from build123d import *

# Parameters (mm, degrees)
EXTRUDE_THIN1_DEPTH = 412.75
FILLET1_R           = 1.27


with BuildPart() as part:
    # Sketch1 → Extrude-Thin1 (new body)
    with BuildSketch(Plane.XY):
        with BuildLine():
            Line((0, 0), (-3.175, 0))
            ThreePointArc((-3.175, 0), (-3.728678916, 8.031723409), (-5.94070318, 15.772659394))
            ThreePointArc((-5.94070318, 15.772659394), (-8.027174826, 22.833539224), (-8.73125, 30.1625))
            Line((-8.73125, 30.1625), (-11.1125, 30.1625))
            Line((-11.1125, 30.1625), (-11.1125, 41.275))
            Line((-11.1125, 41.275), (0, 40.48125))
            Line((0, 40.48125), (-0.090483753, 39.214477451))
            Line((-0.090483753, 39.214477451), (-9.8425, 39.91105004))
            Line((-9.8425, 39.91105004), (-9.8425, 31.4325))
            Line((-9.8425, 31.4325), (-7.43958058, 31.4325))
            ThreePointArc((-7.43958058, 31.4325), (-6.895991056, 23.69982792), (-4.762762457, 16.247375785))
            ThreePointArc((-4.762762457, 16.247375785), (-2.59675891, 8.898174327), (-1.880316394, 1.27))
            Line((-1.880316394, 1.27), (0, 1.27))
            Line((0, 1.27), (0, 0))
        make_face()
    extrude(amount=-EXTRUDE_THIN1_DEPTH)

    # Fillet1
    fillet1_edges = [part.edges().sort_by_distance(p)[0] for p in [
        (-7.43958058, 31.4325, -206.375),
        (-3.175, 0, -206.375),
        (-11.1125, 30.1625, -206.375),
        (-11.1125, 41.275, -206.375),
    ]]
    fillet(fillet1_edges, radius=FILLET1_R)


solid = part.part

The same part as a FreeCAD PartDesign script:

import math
import FreeCAD as App
import Part
import Sketcher
from FreeCAD import Vector
Q = App.Units.Quantity


def edges_at(feature, points):
    """Names of the edges that pass closest to the given points."""
    edges = feature.Shape.Edges
    near = lambda p: min(range(len(edges)), key=lambda i: edges[i].distToShape(Part.Vertex(*p))[0])
    return sorted({f"Edge{near(p) + 1}" for p in points})

doc = App.newDocument("Part")
body = doc.addObject("PartDesign::Body", "Body")

sketch1 = body.newObject("Sketcher::SketchObject", "Sketch")
sketch1.AttachmentSupport = (doc.getObject("XY_Plane"), [""])
sketch1.MapMode = "FlatFace"
sketch1.addGeometry([
    Part.LineSegment(Vector(-3.2, 0, 0), Vector(0, 0, 0)),
    Part.LineSegment(Vector(0, 0, 0), Vector(0, 1.3, 0)),
    Part.LineSegment(Vector(0, 1.3, 0), Vector(-1.9, 1.3, 0)),
    Part.ArcOfCircle(Part.Circle(Vector(-41.6, 1.4, 0), Vector(0, 0, 1), 39.8), math.radians(0), math.radians(22)),
    Part.ArcOfCircle(Part.Circle(Vector(29.8, 30.2, 0), Vector(0, 0, 1), 37.2), math.radians(178), math.radians(202)),
    Part.LineSegment(Vector(-7.4, 31.4, 0), Vector(-9.8, 31.4, 0)),
    Part.LineSegment(Vector(-9.8, 31.4, 0), Vector(-9.8, 39.9, 0)),
    Part.LineSegment(Vector(-9.8, 39.9, 0), Vector(-0.1, 39.2, 0)),
    Part.LineSegment(Vector(-0.1, 39.2, 0), Vector(0, 40.5, 0)),
    Part.LineSegment(Vector(0, 40.5, 0), Vector(-11.1, 41.3, 0)),
    Part.LineSegment(Vector(-11.1, 41.3, 0), Vector(-11.1, 30.2, 0)),
    Part.LineSegment(Vector(-11.1, 30.2, 0), Vector(-8.7, 30.2, 0)),
    Part.ArcOfCircle(Part.Circle(Vector(29.8, 30.2, 0), Vector(0, 0, 1), 38.5), math.radians(-180), math.radians(-158)),
    Part.ArcOfCircle(Part.Circle(Vector(-41.6, 1.4, 0), Vector(0, 0, 1), 38.5), math.radians(-2), math.radians(22)),
], False)
sketch1.addConstraint([
    Sketcher.Constraint("Coincident", 0, 2, 1, 1),
    Sketcher.Constraint("Coincident", 1, 2, 2, 1),
    Sketcher.Constraint("Coincident", 2, 2, 3, 1),
    Sketcher.Constraint("Tangent", 3, 2, 4, 2),
    Sketcher.Constraint("Coincident", 4, 1, 5, 1),
    Sketcher.Constraint("Coincident", 5, 2, 6, 1),
    Sketcher.Constraint("Coincident", 6, 2, 7, 1),
    Sketcher.Constraint("Coincident", 7, 2, 8, 1),
    Sketcher.Constraint("Coincident", 8, 2, 9, 1),
    Sketcher.Constraint("Coincident", 9, 2, 10, 1),
    Sketcher.Constraint("Coincident", 10, 2, 11, 1),
    Sketcher.Constraint("Coincident", 11, 2, 12, 1),
    Sketcher.Constraint("Tangent", 12, 2, 13, 2),
    Sketcher.Constraint("Coincident", 13, 1, 0, 1),
    Sketcher.Constraint("Horizontal", 0),
    Sketcher.Constraint("Vertical", 1),
    Sketcher.Constraint("Horizontal", 2),
    Sketcher.Constraint("Horizontal", 5),
    Sketcher.Constraint("Vertical", 6),
    Sketcher.Constraint("Vertical", 10),
    Sketcher.Constraint("Horizontal", 11),
    Sketcher.Constraint("Coincident", 0, 2, -1, 1),
    Sketcher.Constraint("Coincident", 12, 3, 4, 3),
    Sketcher.Constraint("Coincident", 13, 3, 3, 3),
    Sketcher.Constraint("Equal", 12, 13),
    Sketcher.Constraint("PointOnObject", 8, 2, -2),
    Sketcher.Constraint("Perpendicular", 7, 8),
    Sketcher.Constraint("Perpendicular", 8, 9),
    Sketcher.Constraint("Horizontal", 12, 3, 10, 2),
    Sketcher.Constraint("Radius", 12, Q("1.515625 in")),
    Sketcher.Constraint("DistanceY", 1, 1, 1, 2, Q("0.05 in")),
    Sketcher.Constraint("Distance", 8, Q("0.05 in")),
    Sketcher.Constraint("DistanceX", 0, 1, 0, 2, Q("0.125 in")),
    Sketcher.Constraint("DistanceX", 11, 1, 11, 2, Q("0.09375 in")),
    Sketcher.Constraint("DistanceY", 10, 2, 10, 1, Q("0.4375 in")),
    Sketcher.Constraint("DistanceY", 12, 3, 4, 1, Q("0.05 in")),
    Sketcher.Constraint("DistanceX", 9, 2, 6, 2, Q("0.05 in")),
    Sketcher.Constraint("DistanceX", -1, 1, 4, 3, Q("1.171875 in")),
    Sketcher.Constraint("DistanceY", -1, 1, 4, 3, Q("1.1875 in")),
    Sketcher.Constraint("DistanceY", -1, 1, 8, 2, Q("1.59375 in")),
    Sketcher.Constraint("Radius", 3, Q("39.766875 mm")),
])
pad1 = body.newObject("PartDesign::Pad", "Pad")
pad1.Profile = sketch1
pad1.Length = Q("16.25 in")
pad1.Reversed = True
doc.recompute()

fillet = body.newObject("PartDesign::Fillet", "Fillet")
fillet.Base = (pad1, edges_at(pad1, [
    (-7.44, 31.433, -206.375),
    (-3.175, 0, -206.375),
    (-11.113, 30.163, -206.375),
    (-11.113, 41.275, -206.375),
]))
fillet.Radius = Q("0.05 in")

doc.recompute()
